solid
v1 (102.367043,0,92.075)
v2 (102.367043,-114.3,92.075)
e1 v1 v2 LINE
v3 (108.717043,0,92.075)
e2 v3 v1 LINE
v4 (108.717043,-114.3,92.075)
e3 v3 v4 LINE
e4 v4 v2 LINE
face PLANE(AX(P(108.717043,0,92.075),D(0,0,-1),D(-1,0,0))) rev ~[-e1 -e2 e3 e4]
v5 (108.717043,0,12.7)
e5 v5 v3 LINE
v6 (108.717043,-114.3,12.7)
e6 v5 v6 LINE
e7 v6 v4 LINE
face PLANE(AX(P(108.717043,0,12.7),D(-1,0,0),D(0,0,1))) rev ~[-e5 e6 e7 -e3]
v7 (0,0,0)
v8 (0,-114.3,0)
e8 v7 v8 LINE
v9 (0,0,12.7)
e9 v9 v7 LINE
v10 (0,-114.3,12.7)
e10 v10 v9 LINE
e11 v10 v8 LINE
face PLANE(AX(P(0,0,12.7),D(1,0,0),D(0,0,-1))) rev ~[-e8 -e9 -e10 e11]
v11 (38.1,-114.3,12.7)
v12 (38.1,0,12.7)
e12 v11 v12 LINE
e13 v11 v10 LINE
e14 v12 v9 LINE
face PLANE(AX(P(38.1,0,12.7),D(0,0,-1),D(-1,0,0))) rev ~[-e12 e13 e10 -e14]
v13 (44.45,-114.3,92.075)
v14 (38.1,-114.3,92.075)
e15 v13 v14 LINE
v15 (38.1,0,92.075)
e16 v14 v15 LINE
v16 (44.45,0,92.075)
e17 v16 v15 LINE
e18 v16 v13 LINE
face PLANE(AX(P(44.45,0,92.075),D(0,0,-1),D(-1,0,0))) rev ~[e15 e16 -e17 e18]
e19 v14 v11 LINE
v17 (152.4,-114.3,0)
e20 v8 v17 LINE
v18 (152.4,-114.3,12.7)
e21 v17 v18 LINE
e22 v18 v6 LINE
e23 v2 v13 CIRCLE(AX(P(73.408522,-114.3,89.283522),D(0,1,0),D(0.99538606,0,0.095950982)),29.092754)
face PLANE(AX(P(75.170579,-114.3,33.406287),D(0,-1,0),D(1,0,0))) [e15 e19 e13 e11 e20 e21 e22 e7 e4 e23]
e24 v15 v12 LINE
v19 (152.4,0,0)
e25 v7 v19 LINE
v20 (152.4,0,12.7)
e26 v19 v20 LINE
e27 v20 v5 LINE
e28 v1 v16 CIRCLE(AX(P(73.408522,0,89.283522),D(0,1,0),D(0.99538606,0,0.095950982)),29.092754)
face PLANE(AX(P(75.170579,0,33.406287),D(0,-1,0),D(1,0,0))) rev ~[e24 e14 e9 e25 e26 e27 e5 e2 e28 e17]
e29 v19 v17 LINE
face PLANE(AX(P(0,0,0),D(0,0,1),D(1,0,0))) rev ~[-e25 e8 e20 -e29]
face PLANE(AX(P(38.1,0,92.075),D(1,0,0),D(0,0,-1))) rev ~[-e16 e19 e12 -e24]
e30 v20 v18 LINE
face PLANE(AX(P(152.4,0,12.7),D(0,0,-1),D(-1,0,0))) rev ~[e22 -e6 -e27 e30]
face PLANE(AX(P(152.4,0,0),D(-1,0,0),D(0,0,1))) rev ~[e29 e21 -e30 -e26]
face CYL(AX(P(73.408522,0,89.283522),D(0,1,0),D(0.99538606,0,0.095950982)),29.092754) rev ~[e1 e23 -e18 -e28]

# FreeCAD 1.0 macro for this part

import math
import FreeCAD as App
import Part
import Sketcher
Q = App.Units.Quantity

doc = App.newDocument("Part")
body = doc.addObject("PartDesign::Body", "Body")

sketch1 = body.newObject("Sketcher::SketchObject", "Sketch")
sketch1.AttachmentSupport = (doc.getObject("XZ_Plane"), [""])
sketch1.MapMode = "FlatFace"
sketch1.addGeometry(Part.LineSegment(App.Vector(0, 12.7, 0), App.Vector(0, 0, 0)), False)
sketch1.addGeometry(Part.LineSegment(App.Vector(0, 0, 0), App.Vector(152.4, 0, 0)), False)
sketch1.addGeometry(Part.LineSegment(App.Vector(152.4, 0, 0), App.Vector(152.4, 12.7, 0)), False)
sketch1.addGeometry(Part.LineSegment(App.Vector(152.4, 12.7, 0), App.Vector(108.717043, 12.7, 0)), False)
sketch1.addGeometry(Part.LineSegment(App.Vector(108.717043, 12.7, 0), App.Vector(108.717043, 92.075, 0)), False)
sketch1.addGeometry(Part.LineSegment(App.Vector(108.717043, 92.075, 0), App.Vector(102.367043, 92.075, 0)), False)
sketch1.addGeometry(Part.ArcOfCircle(Part.Circle(App.Vector(73.408522, 89.283522, 0), App.Vector(0, 0, 1), 29.092754), math.radians(174.493943), math.radians(365.506057)), False)
sketch1.addGeometry(Part.LineSegment(App.Vector(44.45, 92.075, 0), App.Vector(38.1, 92.075, 0)), False)
sketch1.addGeometry(Part.LineSegment(App.Vector(38.1, 92.075, 0), App.Vector(38.1, 12.7, 0)), False)
sketch1.addGeometry(Part.LineSegment(App.Vector(38.1, 12.7, 0), App.Vector(0, 12.7, 0)), False)
sketch1.addConstraint(Sketcher.Constraint("Coincident", 0, 2, 1, 1))
sketch1.addConstraint(Sketcher.Constraint("Coincident", 1, 2, 2, 1))
sketch1.addConstraint(Sketcher.Constraint("Coincident", 2, 2, 3, 1))
sketch1.addConstraint(Sketcher.Constraint("Coincident", 3, 2, 4, 1))
sketch1.addConstraint(Sketcher.Constraint("Coincident", 4, 2, 5, 1))
sketch1.addConstraint(Sketcher.Constraint("Coincident", 5, 2, 6, 2))
sketch1.addConstraint(Sketcher.Constraint("Coincident", 6, 1, 7, 1))
sketch1.addConstraint(Sketcher.Constraint("Coincident", 7, 2, 8, 1))
sketch1.addConstraint(Sketcher.Constraint("Coincident", 8, 2, 9, 1))
sketch1.addConstraint(Sketcher.Constraint("Coincident", 9, 2, 0, 1))
sketch1.addConstraint(Sketcher.Constraint("Vertical", 0))
sketch1.addConstraint(Sketcher.Constraint("Horizontal", 1))
sketch1.addConstraint(Sketcher.Constraint("Vertical", 2))
sketch1.addConstraint(Sketcher.Constraint("Horizontal", 3))
sketch1.addConstraint(Sketcher.Constraint("Vertical", 4))
sketch1.addConstraint(Sketcher.Constraint("Horizontal", 5))
sketch1.addConstraint(Sketcher.Constraint("Horizontal", 7))
sketch1.addConstraint(Sketcher.Constraint("Vertical", 8))
sketch1.addConstraint(Sketcher.Constraint("Horizontal", 9))
sketch1.addConstraint(Sketcher.Constraint("Coincident", 0, 2, -1, 1))
sketch1.addConstraint(Sketcher.Constraint("Horizontal", 5, 2, 6, 1))
sketch1.addConstraint(Sketcher.Constraint("Horizontal", 3, 2, 8, 2))
sketch1.addConstraint(Sketcher.Constraint("Equal", 5, 7))
sketch1.addConstraint(Sketcher.Constraint("DistanceX", 1, 1, 1, 2, Q("6 in")))
sketch1.addConstraint(Sketcher.Constraint("DistanceX", 9, 2, 9, 1, Q("1.5 in")))
sketch1.addConstraint(Sketcher.Constraint("DistanceY", 0, 2, 0, 1, Q("0.5 in")))
sketch1.addConstraint(Sketcher.Constraint("DistanceX", 5, 2, 5, 1, Q("0.25 in")))
sketch1.addConstraint(Sketcher.Constraint("DistanceY", 4, 1, 4, 2, Q("3.125 in")))
sketch1.addConstraint(Sketcher.Constraint("Radius", 6, 29.092754))
sketch1.addConstraint(Sketcher.Constraint("DistanceX", 3, 2, 3, 1, 43.682957))
pad1 = body.newObject("PartDesign::Pad", "Pad")
pad1.Profile = sketch1
pad1.Length = Q("1 in")

sketch2 = body.newObject("Sketcher::SketchObject", "Sketch001")
sketch2.AttachmentSupport = (doc.getObject("XZ_Plane"), [""])
sketch2.MapMode = "FlatFace"
sketch2.addGeometry(Part.LineSegment(App.Vector(0, 12.7, 0), App.Vector(0, 0, 0)), False)
sketch2.addGeometry(Part.LineSegment(App.Vector(0, 0, 0), App.Vector(152.4, 0, 0)), False)
sketch2.addGeometry(Part.LineSegment(App.Vector(152.4, 0, 0), App.Vector(152.4, 12.7, 0)), False)
sketch2.addGeometry(Part.LineSegment(App.Vector(152.4, 12.7, 0), App.Vector(108.717043, 12.7, 0)), False)
sketch2.addGeometry(Part.LineSegment(App.Vector(108.717043, 12.7, 0), App.Vector(108.717043, 92.075, 0)), False)
sketch2.addGeometry(Part.LineSegment(App.Vector(108.717043, 92.075, 0), App.Vector(102.367043, 92.075, 0)), False)
sketch2.addGeometry(Part.ArcOfCircle(Part.Circle(App.Vector(73.408522, 89.283522, 0), App.Vector(0, 0, 1), 29.092754), math.radians(174.493943), math.radians(365.506057)), False)
sketch2.addGeometry(Part.LineSegment(App.Vector(44.45, 92.075, 0), App.Vector(38.1, 92.075, 0)), False)
sketch2.addGeometry(Part.LineSegment(App.Vector(38.1, 92.075, 0), App.Vector(38.1, 12.7, 0)), False)
sketch2.addGeometry(Part.LineSegment(App.Vector(38.1, 12.7, 0), App.Vector(0, 12.7, 0)), False)
sketch2.addConstraint(Sketcher.Constraint("Coincident", 0, 2, 1, 1))
sketch2.addConstraint(Sketcher.Constraint("Coincident", 1, 2, 2, 1))
sketch2.addConstraint(Sketcher.Constraint("Coincident", 2, 2, 3, 1))
sketch2.addConstraint(Sketcher.Constraint("Coincident", 3, 2, 4, 1))
sketch2.addConstraint(Sketcher.Constraint("Coincident", 4, 2, 5, 1))
sketch2.addConstraint(Sketcher.Constraint("Coincident", 5, 2, 6, 2))
sketch2.addConstraint(Sketcher.Constraint("Coincident", 6, 1, 7, 1))
sketch2.addConstraint(Sketcher.Constraint("Coincident", 7, 2, 8, 1))
sketch2.addConstraint(Sketcher.Constraint("Coincident", 8, 2, 9, 1))
sketch2.addConstraint(Sketcher.Constraint("Coincident", 9, 2, 0, 1))
sketch2.addConstraint(Sketcher.Constraint("Vertical", 0))
sketch2.addConstraint(Sketcher.Constraint("Horizontal", 1))
sketch2.addConstraint(Sketcher.Constraint("Vertical", 2))
sketch2.addConstraint(Sketcher.Constraint("Horizontal", 3))
sketch2.addConstraint(Sketcher.Constraint("Vertical", 4))
sketch2.addConstraint(Sketcher.Constraint("Horizontal", 5))
sketch2.addConstraint(Sketcher.Constraint("Horizontal", 7))
sketch2.addConstraint(Sketcher.Constraint("Vertical", 8))
sketch2.addConstraint(Sketcher.Constraint("Horizontal", 9))
sketch2.addConstraint(Sketcher.Constraint("Coincident", 0, 2, -1, 1))
sketch2.addConstraint(Sketcher.Constraint("Horizontal", 5, 2, 6, 1))
sketch2.addConstraint(Sketcher.Constraint("Horizontal", 3, 2, 8, 2))
sketch2.addConstraint(Sketcher.Constraint("Equal", 5, 7))
sketch2.addConstraint(Sketcher.Constraint("DistanceX", 1, 1, 1, 2, Q("6 in")))
sketch2.addConstraint(Sketcher.Constraint("DistanceX", 9, 2, 9, 1, Q("1.5 in")))
sketch2.addConstraint(Sketcher.Constraint("DistanceY", 0, 2, 0, 1, Q("0.5 in")))
sketch2.addConstraint(Sketcher.Constraint("DistanceX", 5, 2, 5, 1, Q("0.25 in")))
sketch2.addConstraint(Sketcher.Constraint("DistanceY", 4, 1, 4, 2, Q("3.125 in")))
sketch2.addConstraint(Sketcher.Constraint("Radius", 6, 29.092754))
sketch2.addConstraint(Sketcher.Constraint("DistanceX", 3, 2, 3, 1, 43.682957))
pad2 = body.newObject("PartDesign::Pad", "Pad001")
pad2.Profile = sketch2
pad2.Length = Q("4.5 in")

doc.recompute()
